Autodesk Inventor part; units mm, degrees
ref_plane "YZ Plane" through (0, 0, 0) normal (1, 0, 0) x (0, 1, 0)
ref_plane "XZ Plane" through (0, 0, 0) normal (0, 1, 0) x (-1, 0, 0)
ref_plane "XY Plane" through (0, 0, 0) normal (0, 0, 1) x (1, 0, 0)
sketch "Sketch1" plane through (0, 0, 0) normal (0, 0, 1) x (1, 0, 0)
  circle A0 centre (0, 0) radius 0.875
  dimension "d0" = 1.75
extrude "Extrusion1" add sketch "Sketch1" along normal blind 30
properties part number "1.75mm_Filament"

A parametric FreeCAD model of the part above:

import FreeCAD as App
import Part
import Sketcher

V = App.Vector

doc = App.newDocument("Part")
params = doc.addObject("Spreadsheet::Sheet", "Params")
for row, (alias, value) in enumerate([
    ("sketch1_diameter", "1.75 mm"),
    ("pad1_length", "30 mm"),
], start=1):
    params.set(f"A{row}", alias)
    params.set(f"B{row}", "=" + value)
    params.setAlias(f"B{row}", alias)

body = doc.addObject("PartDesign::Body", "Body")

sketch1 = body.newObject("Sketcher::SketchObject", "Sketch")
sketch1.AttachmentSupport = (doc.getObject("XY_Plane"), [""])
sketch1.MapMode = "FlatFace"
sketch1.addGeometry(Part.Circle(V(0, 0, 0), V(0, 0, 1), 0.9), False)
sketch1.addConstraint([
    Sketcher.Constraint("Coincident", 0, 3, -1, 1),
    Sketcher.Constraint("Diameter", 0, 1.75),
])
sketch1.setExpression("Constraints[1]", "Params.sketch1_diameter")
pad1 = body.newObject("PartDesign::Pad", "Pad")
pad1.Profile = sketch1
pad1.setExpression("Length", "Params.pad1_length")

doc.recompute()
